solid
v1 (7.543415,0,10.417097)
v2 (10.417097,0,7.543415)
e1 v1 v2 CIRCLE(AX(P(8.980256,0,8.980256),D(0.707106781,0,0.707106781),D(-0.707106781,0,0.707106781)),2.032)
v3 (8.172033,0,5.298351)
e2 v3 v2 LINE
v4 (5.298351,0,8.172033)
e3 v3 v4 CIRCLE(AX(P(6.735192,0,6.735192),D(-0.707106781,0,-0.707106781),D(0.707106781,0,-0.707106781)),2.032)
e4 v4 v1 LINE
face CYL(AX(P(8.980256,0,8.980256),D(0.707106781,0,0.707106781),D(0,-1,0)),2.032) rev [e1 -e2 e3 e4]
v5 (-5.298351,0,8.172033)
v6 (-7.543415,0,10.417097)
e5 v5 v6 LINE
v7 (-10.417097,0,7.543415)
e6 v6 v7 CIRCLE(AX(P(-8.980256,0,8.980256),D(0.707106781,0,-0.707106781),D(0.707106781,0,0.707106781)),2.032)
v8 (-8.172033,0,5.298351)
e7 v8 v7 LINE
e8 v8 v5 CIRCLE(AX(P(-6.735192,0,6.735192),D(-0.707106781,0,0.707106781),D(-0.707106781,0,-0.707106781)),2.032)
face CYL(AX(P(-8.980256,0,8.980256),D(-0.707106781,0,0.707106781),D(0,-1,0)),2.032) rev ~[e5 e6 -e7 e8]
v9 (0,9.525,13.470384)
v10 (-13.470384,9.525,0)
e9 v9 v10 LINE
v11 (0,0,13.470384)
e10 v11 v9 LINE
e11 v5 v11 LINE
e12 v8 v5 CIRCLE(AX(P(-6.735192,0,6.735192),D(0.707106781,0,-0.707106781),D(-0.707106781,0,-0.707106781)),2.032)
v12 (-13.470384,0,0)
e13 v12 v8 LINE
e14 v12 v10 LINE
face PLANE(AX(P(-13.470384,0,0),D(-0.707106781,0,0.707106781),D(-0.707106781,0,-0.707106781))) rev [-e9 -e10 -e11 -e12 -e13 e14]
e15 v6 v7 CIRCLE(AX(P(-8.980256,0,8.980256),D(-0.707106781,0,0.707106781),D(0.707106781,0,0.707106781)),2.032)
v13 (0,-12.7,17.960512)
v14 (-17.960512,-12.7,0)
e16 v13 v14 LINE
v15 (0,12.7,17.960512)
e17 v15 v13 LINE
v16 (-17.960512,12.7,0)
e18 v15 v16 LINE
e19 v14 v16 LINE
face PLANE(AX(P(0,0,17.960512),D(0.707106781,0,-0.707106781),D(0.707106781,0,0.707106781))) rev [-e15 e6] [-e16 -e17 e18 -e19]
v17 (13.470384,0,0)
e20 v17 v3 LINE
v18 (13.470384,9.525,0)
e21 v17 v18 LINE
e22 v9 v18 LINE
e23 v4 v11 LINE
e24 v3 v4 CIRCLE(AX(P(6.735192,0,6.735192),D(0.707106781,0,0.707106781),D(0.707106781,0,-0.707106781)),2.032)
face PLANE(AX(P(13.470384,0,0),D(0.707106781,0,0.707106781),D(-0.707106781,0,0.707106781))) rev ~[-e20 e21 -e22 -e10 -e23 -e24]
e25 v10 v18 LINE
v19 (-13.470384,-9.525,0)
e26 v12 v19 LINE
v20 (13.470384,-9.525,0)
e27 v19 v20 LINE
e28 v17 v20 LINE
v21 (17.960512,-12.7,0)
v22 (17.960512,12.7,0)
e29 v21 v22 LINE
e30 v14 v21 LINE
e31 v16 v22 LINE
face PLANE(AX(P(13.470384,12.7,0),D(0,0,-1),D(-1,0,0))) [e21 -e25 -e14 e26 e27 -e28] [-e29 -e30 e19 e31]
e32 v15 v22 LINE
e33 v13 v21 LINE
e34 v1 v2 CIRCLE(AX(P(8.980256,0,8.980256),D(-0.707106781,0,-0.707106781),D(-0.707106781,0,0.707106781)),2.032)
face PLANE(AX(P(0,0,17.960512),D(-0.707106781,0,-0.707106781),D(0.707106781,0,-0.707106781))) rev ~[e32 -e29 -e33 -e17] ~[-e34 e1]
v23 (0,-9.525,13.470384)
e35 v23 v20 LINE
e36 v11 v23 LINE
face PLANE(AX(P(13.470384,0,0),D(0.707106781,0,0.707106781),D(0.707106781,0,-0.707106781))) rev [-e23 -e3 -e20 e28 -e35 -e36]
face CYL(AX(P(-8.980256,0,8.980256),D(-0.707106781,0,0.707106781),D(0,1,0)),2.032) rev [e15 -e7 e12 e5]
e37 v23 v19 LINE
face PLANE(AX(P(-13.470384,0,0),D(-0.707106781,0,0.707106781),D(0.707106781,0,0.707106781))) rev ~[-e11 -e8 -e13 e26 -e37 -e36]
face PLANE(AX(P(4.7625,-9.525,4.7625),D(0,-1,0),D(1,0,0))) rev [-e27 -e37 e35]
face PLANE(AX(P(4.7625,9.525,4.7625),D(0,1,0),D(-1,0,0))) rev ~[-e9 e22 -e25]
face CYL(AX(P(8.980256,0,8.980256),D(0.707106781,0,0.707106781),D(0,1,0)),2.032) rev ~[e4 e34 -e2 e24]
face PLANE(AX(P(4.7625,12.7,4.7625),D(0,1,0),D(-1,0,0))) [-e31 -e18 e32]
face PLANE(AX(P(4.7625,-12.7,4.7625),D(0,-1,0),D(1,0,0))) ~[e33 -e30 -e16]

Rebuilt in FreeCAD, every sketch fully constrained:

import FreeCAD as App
import Part
import Sketcher
from FreeCAD import Vector
Q = App.Units.Quantity

doc = App.newDocument("Part")
body = doc.addObject("PartDesign::Body", "Body")

sketch1 = body.newObject("Sketcher::SketchObject", "Sketch")
sketch1.AttachmentSupport = (doc.getObject("XZ_Plane"), [""])
sketch1.MapMode = "FlatFace"
sketch1.addGeometry([
    Part.LineSegment(Vector(0, 13.470384, 0), Vector(0, 17.960512, 0)),
    Part.LineSegment(Vector(0, 17.960512, 0), Vector(-17.960512, 0, 0)),
    Part.LineSegment(Vector(-17.960512, 0, 0), Vector(-13.470384, 0, 0)),
    Part.LineSegment(Vector(-13.470384, 0, 0), Vector(0, 13.470384, 0)),
], False)
sketch1.addConstraint([
    Sketcher.Constraint("Coincident", 0, 2, 1, 1),
    Sketcher.Constraint("Coincident", 1, 2, 2, 1),
    Sketcher.Constraint("Coincident", 2, 2, 3, 1),
    Sketcher.Constraint("Coincident", 3, 2, 0, 1),
    Sketcher.Constraint("Vertical", 0),
    Sketcher.Constraint("Horizontal", 2),
    Sketcher.Constraint("PointOnObject", 0, 2, -2),
    Sketcher.Constraint("PointOnObject", 1, 2, -1),
    Sketcher.Constraint("Parallel", 1, 3),
    Sketcher.Constraint("Equal", 2, 0),
    Sketcher.Constraint("Distance", 1, Q("1 in")),
    Sketcher.Constraint("Distance", 3, Q("0.75 in")),
])
pad1 = body.newObject("PartDesign::Pad", "Pad")
pad1.Profile = sketch1
pad1.Length = Q("0.5 in")

sketch2 = body.newObject("Sketcher::SketchObject", "Sketch001")
sketch2.AttachmentSupport = (doc.getObject("XZ_Plane"), [""])
sketch2.MapMode = "FlatFace"
sketch2.AttachmentOffset = App.Placement(Vector(0, 0, 0.5 * 25.4), App.Rotation())
sketch2.addGeometry([
    Part.LineSegment(Vector(0, 0, 0), Vector(0, 13.470384, 0)),
    Part.LineSegment(Vector(0, 13.470384, 0), Vector(-13.470384, 0, 0)),
    Part.LineSegment(Vector(-13.470384, 0, 0), Vector(0, 0, 0)),
], False)
sketch2.addConstraint([
    Sketcher.Constraint("Coincident", 0, 2, 1, 1),
    Sketcher.Constraint("Coincident", 1, 2, 2, 1),
    Sketcher.Constraint("Coincident", 2, 2, 0, 1),
    Sketcher.Constraint("Vertical", 0),
    Sketcher.Constraint("Horizontal", 2),
    Sketcher.Constraint("Coincident", 2, 2, -1, 1),
    Sketcher.Constraint("Equal", 2, 0),
    Sketcher.Constraint("Distance", 1, Q("0.75 in")),
])
pad2 = body.newObject("PartDesign::Pad", "Pad001")
pad2.Profile = sketch2
pad2.Length = Q("0.125 in")
pad2.Reversed = True

sketch3 = body.newObject("Sketcher::SketchObject", "Sketch002")
sketch3.Placement = App.Placement(Vector(-8.980256, 0, 8.980256), App.Rotation(Vector(0, -1, 0), Vector(0.707106781, 0, 0.707106781), Vector(-0.707106781, 0, 0.707106781), "ZXY"))
sketch3.addGeometry(Part.Circle(Vector(0, 0, 0), Vector(0, 0, 1), 2.032), False)
sketch3.addConstraint([
    Sketcher.Constraint("Coincident", 0, 3, -1, 1),
    Sketcher.Constraint("Diameter", 0, Q("0.16 in")),
])
pocket1 = body.newObject("PartDesign::Pocket", "Pocket")
pocket1.Profile = sketch3
pocket1.Type = "ThroughAll"
body2 = doc.addObject("PartDesign::Body", "Body001")
doc.recompute()

body2.BaseFeature = body
doc.recompute()

mirroring = doc.addObject("Part::Mirroring", "Mirroring")
mirroring.Source = body
mirroring.Base = Vector(0, -8.391071, 11.866767)
mirroring.Normal = Vector(1, 0, 0)
body3 = doc.addObject("PartDesign::Body", "Body002")
body3.BaseFeature = mirroring
boolean = body2.newObject("PartDesign::Boolean", "Boolean")
boolean.Type = "Fuse"
boolean.addObjects([body3])
doc.recompute()
body4 = doc.addObject("PartDesign::Body", "Body003")
doc.recompute()

body4.BaseFeature = body2
doc.recompute()

mirroring2 = doc.addObject("Part::Mirroring", "Mirroring001")
mirroring2.Source = body2
mirroring2.Base = Vector(0, 0, 12.60313)
mirroring2.Normal = Vector(0, 1, 0)
body5 = doc.addObject("PartDesign::Body", "Body004")
body5.BaseFeature = mirroring2
boolean2 = body4.newObject("PartDesign::Boolean", "Boolean001")
boolean2.Type = "Fuse"
boolean2.addObjects([body5])
doc.recompute()
mirroring.Visibility = False
mirroring2.Visibility = False

doc.recompute()
